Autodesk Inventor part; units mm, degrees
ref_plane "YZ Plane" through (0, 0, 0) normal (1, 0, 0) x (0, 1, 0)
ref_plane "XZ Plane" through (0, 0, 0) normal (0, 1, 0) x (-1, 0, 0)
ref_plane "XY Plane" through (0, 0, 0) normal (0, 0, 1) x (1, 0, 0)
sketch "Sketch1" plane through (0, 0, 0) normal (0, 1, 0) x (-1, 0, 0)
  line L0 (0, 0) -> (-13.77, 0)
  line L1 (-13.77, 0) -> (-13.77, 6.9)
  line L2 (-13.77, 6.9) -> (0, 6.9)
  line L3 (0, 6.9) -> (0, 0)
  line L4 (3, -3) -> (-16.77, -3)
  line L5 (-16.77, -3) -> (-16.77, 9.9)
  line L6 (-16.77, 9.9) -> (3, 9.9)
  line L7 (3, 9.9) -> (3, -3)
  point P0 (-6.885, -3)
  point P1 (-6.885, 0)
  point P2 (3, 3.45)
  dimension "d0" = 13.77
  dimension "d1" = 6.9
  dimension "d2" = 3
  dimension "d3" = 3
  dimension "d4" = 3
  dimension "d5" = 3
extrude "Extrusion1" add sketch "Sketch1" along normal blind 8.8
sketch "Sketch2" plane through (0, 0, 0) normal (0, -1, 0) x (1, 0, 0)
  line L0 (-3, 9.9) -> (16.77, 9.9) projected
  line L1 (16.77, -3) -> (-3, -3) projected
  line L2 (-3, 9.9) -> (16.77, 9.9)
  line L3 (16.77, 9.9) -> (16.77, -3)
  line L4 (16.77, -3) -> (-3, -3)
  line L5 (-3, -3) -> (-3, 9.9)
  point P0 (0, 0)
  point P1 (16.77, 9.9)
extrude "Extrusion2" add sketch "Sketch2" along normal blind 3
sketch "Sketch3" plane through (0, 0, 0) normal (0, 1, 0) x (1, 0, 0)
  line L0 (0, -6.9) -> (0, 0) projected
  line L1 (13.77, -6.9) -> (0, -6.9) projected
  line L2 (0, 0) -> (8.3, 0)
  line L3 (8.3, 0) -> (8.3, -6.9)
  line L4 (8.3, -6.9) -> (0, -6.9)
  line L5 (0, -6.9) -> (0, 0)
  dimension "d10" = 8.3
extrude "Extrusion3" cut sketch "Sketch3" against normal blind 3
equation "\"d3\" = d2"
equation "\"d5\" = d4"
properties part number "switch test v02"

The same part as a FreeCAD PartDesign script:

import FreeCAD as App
import Part
import Sketcher

V = App.Vector
Q = App.Units.Quantity


def add_polygon(sketch, points):
    """Adds a closed chain of lines whose ends are joined by coincident constraints."""
    first, n = sketch.GeometryCount, len(points)
    for a, b in zip(points, points[1:] + points[:1]):
        sketch.addGeometry(Part.LineSegment(App.Vector(*a, 0), App.Vector(*b, 0)), False)
    for i in range(n):
        sketch.addConstraint(Sketcher.Constraint("Coincident", first + i, 2, first + (i + 1) % n, 1))

doc = App.newDocument("Part")
body = doc.addObject("PartDesign::Body", "Body")

# Sketch on XZ plane
sketch1 = body.newObject("Sketcher::SketchObject", "Sketch")
sketch1.AttachmentSupport = (doc.getObject("XZ_Plane"), [""])
sketch1.MapMode = "FlatFace"
add_polygon(sketch1, [(16.77, -3), (-3, -3), (-3, 9.9), (16.77, 9.9)])  # lines 0-3
add_polygon(sketch1, [(0, 6.9), (0, 0), (13.77, 0), (13.77, 6.9)])  # lines 4-7
sketch1.addConstraint(Sketcher.Constraint("Horizontal", 0))
sketch1.addConstraint(Sketcher.Constraint("Vertical", 1))
sketch1.addConstraint(Sketcher.Constraint("Horizontal", 2))
sketch1.addConstraint(Sketcher.Constraint("Vertical", 3))
sketch1.addConstraint(Sketcher.Constraint("Vertical", 4))
sketch1.addConstraint(Sketcher.Constraint("Horizontal", 5))
sketch1.addConstraint(Sketcher.Constraint("Vertical", 6))
sketch1.addConstraint(Sketcher.Constraint("Horizontal", 7))
sketch1.addConstraint(Sketcher.Constraint("Coincident", 4, 2, -1, 1))
sketch1.addConstraint(Sketcher.Constraint("DistanceY", 4, 2, 4, 1, Q("6.9 mm")))
sketch1.addConstraint(Sketcher.Constraint("DistanceX", 0, 2, -1, 1, Q("3 mm")))
sketch1.addConstraint(Sketcher.Constraint("DistanceY", 0, 2, -1, 1, Q("3 mm")))
sketch1.addConstraint(Sketcher.Constraint("DistanceX", 5, 2, 3, 2, Q("3 mm")))
sketch1.addConstraint(Sketcher.Constraint("DistanceY", 6, 2, 2, 2, Q("3 mm")))
sketch1.addConstraint(Sketcher.Constraint("DistanceX", 5, 1, 5, 2, Q("13.77 mm")))
pad1 = body.newObject("PartDesign::Pad", "Pad")
pad1.Profile = sketch1
pad1.Length = 8.8
pad1.Reversed = True

# Sketch on XZ plane
sketch2 = body.newObject("Sketcher::SketchObject", "Sketch001")
sketch2.AttachmentSupport = (doc.getObject("XZ_Plane"), [""])
sketch2.MapMode = "FlatFace"
add_polygon(sketch2, [(16.77, 9.9), (-3, 9.9), (-3, -3), (16.77, -3)])  # lines 0-3
sketch2.addConstraint(Sketcher.Constraint("Horizontal", 0))
sketch2.addConstraint(Sketcher.Constraint("Vertical", 1))
sketch2.addConstraint(Sketcher.Constraint("Horizontal", 2))
sketch2.addConstraint(Sketcher.Constraint("Vertical", 3))
sketch2.addConstraint(Sketcher.Constraint("DistanceY", 1, 2, 1, 1, Q("12.9 mm")))
sketch2.addConstraint(Sketcher.Constraint("DistanceX", 0, 2, -1, 1, Q("3 mm")))
sketch2.addConstraint(Sketcher.Constraint("DistanceY", 1, 2, -1, 1, Q("3 mm")))
sketch2.addConstraint(Sketcher.Constraint("DistanceX", 0, 2, 0, 1, Q("19.77 mm")))
pad2 = body.newObject("PartDesign::Pad", "Pad001")
pad2.Profile = sketch2
pad2.Length = 3

# Sketch on XZ plane
sketch3 = body.newObject("Sketcher::SketchObject", "Sketch002")
sketch3.AttachmentSupport = (doc.getObject("XZ_Plane"), [""])
sketch3.MapMode = "FlatFace"
add_polygon(sketch3, [(0, 0), (0, 6.9), (8.3, 6.9), (8.3, 0)])  # lines 0-3
sketch3.addConstraint(Sketcher.Constraint("Vertical", 0))
sketch3.addConstraint(Sketcher.Constraint("Horizontal", 1))
sketch3.addConstraint(Sketcher.Constraint("Vertical", 2))
sketch3.addConstraint(Sketcher.Constraint("Horizontal", 3))
sketch3.addConstraint(Sketcher.Constraint("Coincident", 3, 2, -1, 1))
sketch3.addConstraint(Sketcher.Constraint("DistanceX", 1, 1, 1, 2, Q("8.3 mm")))
sketch3.addConstraint(Sketcher.Constraint("DistanceY", 0, 1, 0, 2, Q("6.9 mm")))
pocket1 = body.newObject("PartDesign::Pocket", "Pocket")
pocket1.Profile = sketch3
pocket1.Length = 3
pocket1.Reversed = True

doc.recompute()
